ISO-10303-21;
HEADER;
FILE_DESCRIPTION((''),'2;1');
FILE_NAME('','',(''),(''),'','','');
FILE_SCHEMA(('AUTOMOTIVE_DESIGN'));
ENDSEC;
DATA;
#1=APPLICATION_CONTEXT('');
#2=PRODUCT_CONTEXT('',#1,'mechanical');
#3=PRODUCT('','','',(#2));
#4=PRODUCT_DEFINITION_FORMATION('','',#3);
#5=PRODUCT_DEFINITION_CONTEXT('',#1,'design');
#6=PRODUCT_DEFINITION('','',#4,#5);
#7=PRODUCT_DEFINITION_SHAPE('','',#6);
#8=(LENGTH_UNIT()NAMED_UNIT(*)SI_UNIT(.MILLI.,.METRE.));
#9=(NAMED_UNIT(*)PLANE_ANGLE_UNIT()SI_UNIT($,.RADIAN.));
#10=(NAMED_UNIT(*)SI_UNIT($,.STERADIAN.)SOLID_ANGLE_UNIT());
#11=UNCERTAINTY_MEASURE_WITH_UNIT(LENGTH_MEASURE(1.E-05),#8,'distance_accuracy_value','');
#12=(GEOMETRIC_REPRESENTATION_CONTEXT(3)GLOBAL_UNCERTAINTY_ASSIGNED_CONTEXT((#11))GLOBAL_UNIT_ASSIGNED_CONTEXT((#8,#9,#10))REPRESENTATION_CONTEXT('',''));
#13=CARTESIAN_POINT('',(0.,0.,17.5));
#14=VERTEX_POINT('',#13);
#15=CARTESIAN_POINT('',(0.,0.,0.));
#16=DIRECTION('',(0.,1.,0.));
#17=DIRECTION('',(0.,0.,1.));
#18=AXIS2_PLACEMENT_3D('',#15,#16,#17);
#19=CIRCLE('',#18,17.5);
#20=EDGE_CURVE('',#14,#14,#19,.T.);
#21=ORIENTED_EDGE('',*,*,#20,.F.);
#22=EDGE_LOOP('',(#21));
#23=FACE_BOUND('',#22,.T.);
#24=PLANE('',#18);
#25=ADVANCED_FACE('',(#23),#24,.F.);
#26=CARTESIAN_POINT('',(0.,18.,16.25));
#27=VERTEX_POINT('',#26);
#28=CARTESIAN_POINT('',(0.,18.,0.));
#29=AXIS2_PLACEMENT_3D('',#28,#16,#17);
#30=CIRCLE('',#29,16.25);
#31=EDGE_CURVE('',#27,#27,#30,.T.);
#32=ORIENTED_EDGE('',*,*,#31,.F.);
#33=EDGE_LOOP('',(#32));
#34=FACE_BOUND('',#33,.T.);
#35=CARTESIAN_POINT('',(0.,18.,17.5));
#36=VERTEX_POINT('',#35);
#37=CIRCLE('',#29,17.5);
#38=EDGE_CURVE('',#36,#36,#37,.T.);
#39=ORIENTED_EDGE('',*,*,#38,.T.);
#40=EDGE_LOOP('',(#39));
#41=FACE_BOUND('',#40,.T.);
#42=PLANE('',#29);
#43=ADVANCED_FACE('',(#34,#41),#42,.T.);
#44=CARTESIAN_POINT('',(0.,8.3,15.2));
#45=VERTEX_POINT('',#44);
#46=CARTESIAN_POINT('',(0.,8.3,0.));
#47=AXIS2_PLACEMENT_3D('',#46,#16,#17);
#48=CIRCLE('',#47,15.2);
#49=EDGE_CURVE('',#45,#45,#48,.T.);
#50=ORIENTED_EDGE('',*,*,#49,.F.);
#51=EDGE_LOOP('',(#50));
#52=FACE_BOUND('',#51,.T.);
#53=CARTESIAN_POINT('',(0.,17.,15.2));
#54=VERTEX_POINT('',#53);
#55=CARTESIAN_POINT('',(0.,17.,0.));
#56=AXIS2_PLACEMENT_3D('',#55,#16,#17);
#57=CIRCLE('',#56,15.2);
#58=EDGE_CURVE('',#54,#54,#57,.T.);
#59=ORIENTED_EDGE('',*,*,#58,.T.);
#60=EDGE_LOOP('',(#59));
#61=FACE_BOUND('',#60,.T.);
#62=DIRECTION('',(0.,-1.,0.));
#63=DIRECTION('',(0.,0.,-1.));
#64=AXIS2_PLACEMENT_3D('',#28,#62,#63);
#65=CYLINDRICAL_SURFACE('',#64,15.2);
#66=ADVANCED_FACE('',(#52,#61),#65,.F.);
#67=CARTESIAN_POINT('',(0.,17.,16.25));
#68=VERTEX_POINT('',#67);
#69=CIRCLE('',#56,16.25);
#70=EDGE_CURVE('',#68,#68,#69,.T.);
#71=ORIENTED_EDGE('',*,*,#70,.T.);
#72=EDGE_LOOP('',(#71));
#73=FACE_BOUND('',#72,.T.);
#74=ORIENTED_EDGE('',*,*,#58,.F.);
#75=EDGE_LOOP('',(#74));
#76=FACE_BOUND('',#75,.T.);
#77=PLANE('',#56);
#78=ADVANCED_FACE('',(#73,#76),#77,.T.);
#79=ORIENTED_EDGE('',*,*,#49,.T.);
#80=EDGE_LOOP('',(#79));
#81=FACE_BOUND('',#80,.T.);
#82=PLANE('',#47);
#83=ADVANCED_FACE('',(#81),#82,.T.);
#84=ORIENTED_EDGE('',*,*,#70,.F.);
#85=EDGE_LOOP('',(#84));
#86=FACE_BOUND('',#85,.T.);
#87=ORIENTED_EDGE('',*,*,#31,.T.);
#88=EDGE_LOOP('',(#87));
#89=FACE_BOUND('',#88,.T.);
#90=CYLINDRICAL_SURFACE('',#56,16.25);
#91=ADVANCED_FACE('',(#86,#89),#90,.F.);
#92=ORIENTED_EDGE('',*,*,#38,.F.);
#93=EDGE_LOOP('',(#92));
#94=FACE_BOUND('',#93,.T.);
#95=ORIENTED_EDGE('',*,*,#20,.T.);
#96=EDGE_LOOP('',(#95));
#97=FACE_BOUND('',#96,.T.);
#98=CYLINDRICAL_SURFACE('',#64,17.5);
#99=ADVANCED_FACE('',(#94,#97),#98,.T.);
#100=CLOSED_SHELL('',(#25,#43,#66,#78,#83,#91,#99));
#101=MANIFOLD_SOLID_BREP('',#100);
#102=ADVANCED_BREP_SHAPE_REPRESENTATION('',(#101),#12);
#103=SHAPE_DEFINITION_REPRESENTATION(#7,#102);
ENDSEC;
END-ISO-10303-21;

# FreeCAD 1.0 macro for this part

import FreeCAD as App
import Part
import Sketcher
from FreeCAD import Vector


def faces_at(feature, points):
    """Names of the faces that lie closest to the given points."""
    faces = feature.Shape.Faces
    near = lambda p: min(range(len(faces)), key=lambda i: faces[i].distToShape(Part.Vertex(*p))[0])
    return sorted({f"Face{near(p) + 1}" for p in points})

doc = App.newDocument("Part")
body = doc.addObject("PartDesign::Body", "Body")

# Sketch on XZ plane
sketch1 = doc.addObject("Sketcher::SketchObject", "Sketch")
body.addObject(sketch1)
sketch1.AttachmentSupport = (doc.XZ_Plane, [""])
sketch1.MapMode = "FlatFace"
sketch1.addGeometry(Part.Circle(Vector(0, 0, 0), Vector(0, 0, 1), 17.5), False)
sketch1.addConstraint(Sketcher.Constraint("Coincident", 0, 3, -1, 1))
sketch1.addConstraint(Sketcher.Constraint("Diameter", 0, 35.0))
pad1 = doc.addObject("PartDesign::Pad", "Pad")
body.addObject(pad1)
pad1.Profile = sketch1
pad1.Length = 18
pad1.Reversed = True
doc.recompute()

thickness = doc.addObject("PartDesign::Thickness", "Thickness")
body.addObject(thickness)
thickness.Base = (pad1, faces_at(pad1, [(0, 18, 0)]))
thickness.Value = 2.3
thickness.Reversed = True
thickness.Join = "Intersection"

# Sketch on XZ plane
sketch2 = doc.addObject("Sketcher::SketchObject", "Sketch001")
body.addObject(sketch2)
sketch2.AttachmentSupport = (doc.XZ_Plane, [""])
sketch2.MapMode = "FlatFace"
sketch2.AttachmentOffset = App.Placement(Vector(0, 0, -18), App.Rotation())
sketch2.addGeometry(Part.Circle(Vector(0, 0, 0), Vector(0, 0, 1), 16.25), False)
sketch2.addConstraint(Sketcher.Constraint("Coincident", 0, 3, -1, 1))
sketch2.addConstraint(Sketcher.Constraint("Diameter", 0, 32.5))
pocket1 = doc.addObject("PartDesign::Pocket", "Pocket")
body.addObject(pocket1)
pocket1.Profile = sketch2
pocket1.Length = 1
pocket1.Reversed = True

# Sketch on XZ plane
sketch3 = doc.addObject("Sketcher::SketchObject", "Sketch002")
body.addObject(sketch3)
sketch3.AttachmentSupport = (doc.XZ_Plane, [""])
sketch3.MapMode = "FlatFace"
sketch3.AttachmentOffset = App.Placement(Vector(0, 0, -2.3), App.Rotation())
sketch3.addGeometry(Part.Circle(Vector(0, 0, 0), Vector(0, 0, 1), 15.2), False)
sketch3.addConstraint(Sketcher.Constraint("Coincident", 0, 3, -1, 1))
sketch3.addConstraint(Sketcher.Constraint("Diameter", 0, 30.4))
pad2 = doc.addObject("PartDesign::Pad", "Pad001")
body.addObject(pad2)
pad2.Profile = sketch3
pad2.Length = 6
pad2.Reversed = True

doc.recompute()
